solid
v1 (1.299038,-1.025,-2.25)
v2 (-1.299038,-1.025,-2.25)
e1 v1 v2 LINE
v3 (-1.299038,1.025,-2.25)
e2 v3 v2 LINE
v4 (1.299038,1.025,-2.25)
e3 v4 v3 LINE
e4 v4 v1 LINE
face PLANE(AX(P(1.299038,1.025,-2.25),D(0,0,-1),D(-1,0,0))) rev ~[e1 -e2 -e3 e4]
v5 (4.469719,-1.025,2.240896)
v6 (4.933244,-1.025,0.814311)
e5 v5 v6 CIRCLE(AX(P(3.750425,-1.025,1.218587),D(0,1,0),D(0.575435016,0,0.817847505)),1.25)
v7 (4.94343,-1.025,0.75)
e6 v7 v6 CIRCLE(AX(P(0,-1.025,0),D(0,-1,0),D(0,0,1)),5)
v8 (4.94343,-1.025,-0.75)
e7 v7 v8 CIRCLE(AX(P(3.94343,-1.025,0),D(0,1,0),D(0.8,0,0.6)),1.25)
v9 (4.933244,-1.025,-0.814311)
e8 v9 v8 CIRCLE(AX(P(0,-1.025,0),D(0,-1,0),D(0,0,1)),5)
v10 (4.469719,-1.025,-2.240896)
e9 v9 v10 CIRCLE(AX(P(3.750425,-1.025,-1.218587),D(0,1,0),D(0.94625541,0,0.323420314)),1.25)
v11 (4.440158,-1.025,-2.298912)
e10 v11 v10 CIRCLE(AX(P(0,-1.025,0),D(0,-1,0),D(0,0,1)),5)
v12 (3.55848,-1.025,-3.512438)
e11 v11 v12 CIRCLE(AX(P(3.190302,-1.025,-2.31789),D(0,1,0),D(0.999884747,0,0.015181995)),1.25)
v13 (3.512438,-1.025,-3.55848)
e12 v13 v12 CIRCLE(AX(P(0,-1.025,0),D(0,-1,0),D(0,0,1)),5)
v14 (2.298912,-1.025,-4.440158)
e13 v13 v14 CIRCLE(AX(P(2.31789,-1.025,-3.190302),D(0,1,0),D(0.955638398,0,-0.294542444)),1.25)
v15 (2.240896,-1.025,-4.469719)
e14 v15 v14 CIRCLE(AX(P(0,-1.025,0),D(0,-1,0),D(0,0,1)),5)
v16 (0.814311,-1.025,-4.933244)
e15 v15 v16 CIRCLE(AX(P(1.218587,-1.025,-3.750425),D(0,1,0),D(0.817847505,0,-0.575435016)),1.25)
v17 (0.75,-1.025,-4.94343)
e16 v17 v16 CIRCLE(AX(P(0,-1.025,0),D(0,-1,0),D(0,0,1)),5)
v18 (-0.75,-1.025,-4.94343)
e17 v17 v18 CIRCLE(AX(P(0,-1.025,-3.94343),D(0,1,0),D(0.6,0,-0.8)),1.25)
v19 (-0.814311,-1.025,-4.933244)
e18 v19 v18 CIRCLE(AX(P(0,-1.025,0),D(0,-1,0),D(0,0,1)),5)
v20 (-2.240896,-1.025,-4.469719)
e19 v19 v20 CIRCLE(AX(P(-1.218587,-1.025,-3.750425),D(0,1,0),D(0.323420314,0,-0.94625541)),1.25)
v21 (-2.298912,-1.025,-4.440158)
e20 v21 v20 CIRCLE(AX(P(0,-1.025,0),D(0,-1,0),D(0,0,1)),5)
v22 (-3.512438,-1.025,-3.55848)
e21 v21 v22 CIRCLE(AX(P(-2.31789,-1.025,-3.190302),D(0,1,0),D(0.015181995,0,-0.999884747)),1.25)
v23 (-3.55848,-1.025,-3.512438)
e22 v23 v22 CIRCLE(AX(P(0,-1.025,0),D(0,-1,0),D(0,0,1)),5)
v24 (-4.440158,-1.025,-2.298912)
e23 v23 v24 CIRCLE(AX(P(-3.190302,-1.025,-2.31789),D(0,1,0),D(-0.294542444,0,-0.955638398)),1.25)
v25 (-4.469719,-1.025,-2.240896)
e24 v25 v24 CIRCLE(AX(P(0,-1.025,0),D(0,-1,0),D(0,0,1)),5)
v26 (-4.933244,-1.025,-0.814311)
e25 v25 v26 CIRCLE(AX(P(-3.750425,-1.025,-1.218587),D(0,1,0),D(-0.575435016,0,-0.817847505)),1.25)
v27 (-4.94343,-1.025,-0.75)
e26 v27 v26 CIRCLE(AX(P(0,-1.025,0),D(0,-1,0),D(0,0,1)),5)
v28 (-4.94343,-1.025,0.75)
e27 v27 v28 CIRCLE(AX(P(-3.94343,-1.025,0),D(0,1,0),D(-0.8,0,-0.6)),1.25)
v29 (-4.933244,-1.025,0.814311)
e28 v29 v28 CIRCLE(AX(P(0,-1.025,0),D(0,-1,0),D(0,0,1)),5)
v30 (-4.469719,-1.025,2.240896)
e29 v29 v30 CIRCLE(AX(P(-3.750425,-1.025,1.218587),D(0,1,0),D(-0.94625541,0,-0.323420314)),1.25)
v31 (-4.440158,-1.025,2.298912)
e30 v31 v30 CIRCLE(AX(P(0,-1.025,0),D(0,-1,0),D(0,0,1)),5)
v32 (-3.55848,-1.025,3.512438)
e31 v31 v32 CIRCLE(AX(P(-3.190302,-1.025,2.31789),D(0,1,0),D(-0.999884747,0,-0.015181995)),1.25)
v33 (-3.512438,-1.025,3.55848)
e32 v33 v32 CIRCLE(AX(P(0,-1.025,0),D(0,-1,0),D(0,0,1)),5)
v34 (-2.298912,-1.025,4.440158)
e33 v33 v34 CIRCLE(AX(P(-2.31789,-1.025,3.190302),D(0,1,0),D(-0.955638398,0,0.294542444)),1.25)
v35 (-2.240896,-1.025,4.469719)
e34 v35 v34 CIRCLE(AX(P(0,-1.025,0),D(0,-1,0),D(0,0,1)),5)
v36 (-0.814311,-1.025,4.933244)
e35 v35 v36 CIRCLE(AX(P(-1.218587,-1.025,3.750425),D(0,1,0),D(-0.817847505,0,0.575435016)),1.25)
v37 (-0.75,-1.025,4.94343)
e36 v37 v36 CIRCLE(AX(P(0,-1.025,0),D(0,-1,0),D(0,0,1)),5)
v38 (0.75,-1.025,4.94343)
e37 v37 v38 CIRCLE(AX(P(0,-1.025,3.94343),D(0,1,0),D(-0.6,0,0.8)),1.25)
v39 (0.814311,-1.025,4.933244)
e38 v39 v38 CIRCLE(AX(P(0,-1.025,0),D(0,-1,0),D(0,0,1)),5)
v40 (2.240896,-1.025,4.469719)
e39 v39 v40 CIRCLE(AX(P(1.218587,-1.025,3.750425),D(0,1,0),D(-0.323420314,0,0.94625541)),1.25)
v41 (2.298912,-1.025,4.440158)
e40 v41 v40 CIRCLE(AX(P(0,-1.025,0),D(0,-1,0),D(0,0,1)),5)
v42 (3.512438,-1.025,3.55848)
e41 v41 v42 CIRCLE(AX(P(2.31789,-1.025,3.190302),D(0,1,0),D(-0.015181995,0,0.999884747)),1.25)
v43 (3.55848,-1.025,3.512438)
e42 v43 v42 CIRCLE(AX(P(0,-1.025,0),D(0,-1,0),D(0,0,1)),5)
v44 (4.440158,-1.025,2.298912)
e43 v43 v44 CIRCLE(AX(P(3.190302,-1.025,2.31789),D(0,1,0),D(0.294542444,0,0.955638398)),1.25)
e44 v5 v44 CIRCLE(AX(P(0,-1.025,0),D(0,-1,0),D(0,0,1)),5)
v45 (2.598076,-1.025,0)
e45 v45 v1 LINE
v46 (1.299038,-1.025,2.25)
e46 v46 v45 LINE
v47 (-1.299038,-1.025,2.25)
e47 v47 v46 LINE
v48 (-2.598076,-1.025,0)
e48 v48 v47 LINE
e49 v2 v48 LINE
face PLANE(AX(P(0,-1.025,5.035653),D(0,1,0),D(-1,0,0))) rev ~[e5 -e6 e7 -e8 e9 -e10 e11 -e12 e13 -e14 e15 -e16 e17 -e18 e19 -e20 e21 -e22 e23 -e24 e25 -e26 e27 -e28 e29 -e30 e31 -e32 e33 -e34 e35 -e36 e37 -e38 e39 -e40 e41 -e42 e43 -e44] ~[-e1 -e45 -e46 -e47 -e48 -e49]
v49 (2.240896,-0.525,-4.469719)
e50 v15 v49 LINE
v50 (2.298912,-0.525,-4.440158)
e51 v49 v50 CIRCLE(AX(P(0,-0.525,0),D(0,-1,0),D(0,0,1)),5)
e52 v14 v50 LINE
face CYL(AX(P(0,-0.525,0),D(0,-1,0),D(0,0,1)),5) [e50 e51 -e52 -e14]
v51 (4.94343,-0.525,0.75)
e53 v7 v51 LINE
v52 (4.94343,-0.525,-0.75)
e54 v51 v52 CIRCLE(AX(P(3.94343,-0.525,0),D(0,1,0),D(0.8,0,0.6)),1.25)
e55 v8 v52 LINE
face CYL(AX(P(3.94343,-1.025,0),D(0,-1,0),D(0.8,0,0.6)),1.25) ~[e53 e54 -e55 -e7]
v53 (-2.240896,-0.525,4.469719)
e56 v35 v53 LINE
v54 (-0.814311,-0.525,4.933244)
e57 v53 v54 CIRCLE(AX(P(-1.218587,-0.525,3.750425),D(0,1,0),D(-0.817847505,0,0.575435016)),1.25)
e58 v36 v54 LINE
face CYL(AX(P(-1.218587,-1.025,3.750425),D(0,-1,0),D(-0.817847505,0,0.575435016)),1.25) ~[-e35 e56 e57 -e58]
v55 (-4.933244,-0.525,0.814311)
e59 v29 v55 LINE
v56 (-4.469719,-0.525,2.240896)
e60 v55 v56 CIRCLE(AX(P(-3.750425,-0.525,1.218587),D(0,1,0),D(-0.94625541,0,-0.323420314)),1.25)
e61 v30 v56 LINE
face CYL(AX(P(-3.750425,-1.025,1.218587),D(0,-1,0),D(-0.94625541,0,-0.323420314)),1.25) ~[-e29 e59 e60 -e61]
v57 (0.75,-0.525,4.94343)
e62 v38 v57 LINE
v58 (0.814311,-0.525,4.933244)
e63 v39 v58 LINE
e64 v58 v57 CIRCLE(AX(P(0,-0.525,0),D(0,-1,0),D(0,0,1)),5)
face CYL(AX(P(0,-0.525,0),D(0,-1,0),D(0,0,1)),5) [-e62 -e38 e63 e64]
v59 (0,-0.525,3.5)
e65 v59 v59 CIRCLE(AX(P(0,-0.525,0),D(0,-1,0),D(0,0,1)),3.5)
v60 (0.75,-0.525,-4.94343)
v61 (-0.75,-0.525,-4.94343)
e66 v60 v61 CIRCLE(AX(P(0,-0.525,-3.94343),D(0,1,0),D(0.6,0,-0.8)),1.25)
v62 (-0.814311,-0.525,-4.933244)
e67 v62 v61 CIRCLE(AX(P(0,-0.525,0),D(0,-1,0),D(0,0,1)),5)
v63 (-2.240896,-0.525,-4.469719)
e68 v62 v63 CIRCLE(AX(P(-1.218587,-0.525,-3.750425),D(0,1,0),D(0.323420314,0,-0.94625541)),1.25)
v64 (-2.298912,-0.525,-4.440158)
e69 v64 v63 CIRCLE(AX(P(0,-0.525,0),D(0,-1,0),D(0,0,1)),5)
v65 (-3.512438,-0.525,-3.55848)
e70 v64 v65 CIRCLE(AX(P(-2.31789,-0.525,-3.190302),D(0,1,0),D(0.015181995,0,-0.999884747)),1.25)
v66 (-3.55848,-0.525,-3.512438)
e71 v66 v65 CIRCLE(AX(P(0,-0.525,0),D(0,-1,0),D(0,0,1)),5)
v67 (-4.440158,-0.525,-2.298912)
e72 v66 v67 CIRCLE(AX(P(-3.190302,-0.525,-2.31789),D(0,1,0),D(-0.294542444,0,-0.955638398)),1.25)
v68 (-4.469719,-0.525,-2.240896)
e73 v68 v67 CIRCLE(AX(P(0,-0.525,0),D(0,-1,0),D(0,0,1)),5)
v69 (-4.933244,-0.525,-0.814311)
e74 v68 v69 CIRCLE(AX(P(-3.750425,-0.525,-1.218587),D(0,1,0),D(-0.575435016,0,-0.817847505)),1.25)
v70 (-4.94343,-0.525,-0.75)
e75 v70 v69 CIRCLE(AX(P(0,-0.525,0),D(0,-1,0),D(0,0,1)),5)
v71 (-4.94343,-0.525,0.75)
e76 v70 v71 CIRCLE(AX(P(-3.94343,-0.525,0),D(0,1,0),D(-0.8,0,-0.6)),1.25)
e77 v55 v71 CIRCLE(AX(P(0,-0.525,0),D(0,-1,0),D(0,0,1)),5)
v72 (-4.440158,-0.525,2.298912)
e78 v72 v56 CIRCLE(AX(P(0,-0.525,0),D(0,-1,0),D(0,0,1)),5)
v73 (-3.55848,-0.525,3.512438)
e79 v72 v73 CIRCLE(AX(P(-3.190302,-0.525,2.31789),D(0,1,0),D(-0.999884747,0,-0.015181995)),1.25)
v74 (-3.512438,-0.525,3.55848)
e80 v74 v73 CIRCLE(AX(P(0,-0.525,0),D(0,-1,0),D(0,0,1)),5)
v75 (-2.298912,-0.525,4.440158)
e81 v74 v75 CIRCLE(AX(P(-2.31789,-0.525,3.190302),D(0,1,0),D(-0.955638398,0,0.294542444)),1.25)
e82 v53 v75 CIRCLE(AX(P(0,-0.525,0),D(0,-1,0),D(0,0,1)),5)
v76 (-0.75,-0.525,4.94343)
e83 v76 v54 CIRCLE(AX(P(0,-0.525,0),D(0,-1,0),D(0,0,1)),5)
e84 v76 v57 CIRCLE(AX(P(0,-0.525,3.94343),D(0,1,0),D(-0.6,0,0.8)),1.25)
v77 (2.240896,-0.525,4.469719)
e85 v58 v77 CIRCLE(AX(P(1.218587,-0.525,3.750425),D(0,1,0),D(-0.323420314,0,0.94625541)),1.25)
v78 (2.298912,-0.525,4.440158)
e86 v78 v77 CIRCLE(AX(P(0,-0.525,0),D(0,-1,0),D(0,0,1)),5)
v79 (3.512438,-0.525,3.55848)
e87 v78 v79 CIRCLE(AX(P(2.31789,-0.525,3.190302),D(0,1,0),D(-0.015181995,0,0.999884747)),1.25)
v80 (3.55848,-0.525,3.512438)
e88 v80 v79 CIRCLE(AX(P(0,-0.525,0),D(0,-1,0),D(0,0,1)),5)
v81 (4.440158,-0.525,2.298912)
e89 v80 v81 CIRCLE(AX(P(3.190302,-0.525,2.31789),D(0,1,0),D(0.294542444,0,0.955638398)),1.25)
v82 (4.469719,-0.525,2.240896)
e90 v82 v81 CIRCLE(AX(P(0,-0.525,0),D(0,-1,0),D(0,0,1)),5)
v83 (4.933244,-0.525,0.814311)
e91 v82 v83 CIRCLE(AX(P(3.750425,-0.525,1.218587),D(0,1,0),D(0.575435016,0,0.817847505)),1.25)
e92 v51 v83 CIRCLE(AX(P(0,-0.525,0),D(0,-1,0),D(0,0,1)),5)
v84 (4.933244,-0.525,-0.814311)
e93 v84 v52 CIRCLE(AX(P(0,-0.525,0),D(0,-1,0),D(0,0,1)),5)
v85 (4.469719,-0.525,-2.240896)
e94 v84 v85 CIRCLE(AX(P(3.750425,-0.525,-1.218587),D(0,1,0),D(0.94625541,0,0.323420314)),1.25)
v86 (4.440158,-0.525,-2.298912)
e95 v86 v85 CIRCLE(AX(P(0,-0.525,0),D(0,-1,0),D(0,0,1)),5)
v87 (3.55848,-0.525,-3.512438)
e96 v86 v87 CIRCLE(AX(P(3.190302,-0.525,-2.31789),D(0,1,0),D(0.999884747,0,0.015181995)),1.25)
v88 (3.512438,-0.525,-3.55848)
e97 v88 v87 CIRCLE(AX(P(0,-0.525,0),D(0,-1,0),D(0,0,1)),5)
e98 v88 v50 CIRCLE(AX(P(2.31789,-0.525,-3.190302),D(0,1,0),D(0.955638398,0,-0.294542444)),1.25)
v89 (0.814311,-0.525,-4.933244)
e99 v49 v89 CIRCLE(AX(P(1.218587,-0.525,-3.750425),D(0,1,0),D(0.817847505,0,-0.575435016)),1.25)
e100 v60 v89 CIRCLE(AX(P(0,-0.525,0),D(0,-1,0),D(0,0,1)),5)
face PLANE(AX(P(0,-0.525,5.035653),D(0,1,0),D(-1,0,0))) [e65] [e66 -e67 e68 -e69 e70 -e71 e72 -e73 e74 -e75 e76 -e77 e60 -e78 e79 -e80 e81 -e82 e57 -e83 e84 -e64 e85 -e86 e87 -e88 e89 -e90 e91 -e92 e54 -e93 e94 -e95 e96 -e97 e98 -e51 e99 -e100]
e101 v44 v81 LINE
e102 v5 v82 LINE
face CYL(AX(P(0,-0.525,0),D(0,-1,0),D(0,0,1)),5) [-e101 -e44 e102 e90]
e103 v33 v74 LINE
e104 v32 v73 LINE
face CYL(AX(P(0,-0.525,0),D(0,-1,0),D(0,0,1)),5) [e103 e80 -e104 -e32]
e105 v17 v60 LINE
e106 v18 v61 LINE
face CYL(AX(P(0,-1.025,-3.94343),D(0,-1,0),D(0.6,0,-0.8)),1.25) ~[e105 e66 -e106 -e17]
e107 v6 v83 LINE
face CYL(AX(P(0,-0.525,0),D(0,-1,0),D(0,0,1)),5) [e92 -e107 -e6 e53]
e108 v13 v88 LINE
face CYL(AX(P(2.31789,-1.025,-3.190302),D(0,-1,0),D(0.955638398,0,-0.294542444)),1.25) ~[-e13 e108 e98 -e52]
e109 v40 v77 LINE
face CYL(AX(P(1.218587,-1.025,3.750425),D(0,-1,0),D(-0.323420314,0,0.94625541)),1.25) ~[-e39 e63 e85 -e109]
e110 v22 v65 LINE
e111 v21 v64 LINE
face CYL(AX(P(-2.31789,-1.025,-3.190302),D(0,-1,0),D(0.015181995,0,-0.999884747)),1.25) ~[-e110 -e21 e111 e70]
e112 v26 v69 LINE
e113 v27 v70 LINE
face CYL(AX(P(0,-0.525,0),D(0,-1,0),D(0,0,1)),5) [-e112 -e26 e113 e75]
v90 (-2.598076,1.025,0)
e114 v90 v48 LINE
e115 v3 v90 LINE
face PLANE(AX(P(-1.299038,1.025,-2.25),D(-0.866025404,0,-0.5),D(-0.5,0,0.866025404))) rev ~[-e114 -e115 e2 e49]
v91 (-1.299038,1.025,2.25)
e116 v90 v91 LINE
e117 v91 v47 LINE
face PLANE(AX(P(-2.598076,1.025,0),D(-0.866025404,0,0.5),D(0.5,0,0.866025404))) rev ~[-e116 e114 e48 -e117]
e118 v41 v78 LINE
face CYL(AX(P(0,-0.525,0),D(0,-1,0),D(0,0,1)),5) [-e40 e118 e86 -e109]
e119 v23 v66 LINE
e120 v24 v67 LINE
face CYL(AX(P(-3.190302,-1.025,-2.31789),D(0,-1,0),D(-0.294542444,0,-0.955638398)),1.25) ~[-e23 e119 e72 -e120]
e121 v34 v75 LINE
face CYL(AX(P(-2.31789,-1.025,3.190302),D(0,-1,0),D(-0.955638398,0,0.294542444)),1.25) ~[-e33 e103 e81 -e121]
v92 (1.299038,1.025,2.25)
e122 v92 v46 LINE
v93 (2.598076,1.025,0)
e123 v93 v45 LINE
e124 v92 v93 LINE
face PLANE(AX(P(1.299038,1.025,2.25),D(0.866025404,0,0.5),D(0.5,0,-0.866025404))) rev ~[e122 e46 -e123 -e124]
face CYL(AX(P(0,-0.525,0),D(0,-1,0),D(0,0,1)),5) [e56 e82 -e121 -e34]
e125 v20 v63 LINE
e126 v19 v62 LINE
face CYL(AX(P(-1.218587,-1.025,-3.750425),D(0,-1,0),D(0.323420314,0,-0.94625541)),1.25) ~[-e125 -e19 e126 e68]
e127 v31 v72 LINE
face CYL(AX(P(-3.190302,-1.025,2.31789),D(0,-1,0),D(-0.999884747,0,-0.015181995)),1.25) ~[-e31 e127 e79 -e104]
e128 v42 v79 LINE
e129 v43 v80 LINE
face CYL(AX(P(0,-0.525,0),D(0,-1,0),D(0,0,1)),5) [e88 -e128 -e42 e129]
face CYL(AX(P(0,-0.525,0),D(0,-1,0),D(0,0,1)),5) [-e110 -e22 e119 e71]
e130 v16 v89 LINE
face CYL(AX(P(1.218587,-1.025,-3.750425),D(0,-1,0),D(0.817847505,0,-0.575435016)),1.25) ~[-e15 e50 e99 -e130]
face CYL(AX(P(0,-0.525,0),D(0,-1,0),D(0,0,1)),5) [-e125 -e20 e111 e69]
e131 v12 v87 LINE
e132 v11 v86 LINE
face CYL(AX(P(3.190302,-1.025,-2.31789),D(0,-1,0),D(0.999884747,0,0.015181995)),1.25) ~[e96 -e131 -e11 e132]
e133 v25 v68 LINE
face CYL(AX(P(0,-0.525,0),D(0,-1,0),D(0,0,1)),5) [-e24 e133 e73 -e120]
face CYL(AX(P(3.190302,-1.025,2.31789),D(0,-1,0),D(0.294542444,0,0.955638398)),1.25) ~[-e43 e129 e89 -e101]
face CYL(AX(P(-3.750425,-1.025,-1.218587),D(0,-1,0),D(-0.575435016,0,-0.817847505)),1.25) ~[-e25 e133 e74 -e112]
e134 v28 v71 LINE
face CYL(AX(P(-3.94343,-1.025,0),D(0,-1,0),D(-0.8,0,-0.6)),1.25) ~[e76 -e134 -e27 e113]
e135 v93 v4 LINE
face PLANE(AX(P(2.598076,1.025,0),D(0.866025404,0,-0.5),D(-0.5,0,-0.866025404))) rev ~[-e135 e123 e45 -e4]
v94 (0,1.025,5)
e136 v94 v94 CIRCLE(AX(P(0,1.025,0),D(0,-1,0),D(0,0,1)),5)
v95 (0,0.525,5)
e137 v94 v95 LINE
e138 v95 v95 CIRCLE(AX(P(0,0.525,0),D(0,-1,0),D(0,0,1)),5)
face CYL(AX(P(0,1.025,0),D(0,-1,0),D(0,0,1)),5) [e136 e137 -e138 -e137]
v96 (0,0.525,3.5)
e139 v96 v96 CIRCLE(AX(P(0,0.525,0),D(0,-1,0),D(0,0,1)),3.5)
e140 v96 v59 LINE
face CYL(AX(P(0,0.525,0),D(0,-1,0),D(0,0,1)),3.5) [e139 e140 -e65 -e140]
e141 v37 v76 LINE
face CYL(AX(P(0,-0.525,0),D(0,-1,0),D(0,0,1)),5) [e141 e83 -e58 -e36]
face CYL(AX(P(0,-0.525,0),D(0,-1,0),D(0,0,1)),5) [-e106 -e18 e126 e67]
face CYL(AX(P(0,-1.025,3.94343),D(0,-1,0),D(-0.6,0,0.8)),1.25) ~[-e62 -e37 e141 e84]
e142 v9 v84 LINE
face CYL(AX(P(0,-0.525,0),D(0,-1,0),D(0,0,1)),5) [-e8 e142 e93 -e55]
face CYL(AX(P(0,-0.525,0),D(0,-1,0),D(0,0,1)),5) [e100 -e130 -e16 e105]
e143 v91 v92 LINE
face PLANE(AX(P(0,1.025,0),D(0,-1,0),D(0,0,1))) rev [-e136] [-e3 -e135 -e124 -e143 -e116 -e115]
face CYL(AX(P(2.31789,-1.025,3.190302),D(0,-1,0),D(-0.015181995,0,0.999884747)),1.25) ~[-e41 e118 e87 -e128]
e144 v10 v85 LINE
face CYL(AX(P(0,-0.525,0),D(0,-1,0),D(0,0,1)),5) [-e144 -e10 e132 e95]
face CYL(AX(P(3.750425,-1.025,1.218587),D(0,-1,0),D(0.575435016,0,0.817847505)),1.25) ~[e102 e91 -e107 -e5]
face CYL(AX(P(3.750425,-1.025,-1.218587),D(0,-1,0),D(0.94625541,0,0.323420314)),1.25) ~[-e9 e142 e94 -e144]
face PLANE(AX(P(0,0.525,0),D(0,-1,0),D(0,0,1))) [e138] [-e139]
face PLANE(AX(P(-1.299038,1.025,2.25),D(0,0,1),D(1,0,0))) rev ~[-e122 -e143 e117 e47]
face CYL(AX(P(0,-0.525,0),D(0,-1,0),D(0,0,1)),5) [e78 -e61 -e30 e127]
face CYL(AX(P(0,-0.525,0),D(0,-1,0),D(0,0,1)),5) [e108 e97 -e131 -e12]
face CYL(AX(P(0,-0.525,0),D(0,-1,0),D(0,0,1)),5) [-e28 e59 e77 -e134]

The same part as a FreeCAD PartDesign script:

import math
import FreeCAD as App
import Part
import Sketcher

V = App.Vector
Q = App.Units.Quantity

doc = App.newDocument("Part")
body = doc.addObject("PartDesign::Body", "Body")

sketch1 = body.newObject("Sketcher::SketchObject", "Sketch")
sketch1.AttachmentSupport = (doc.getObject("YZ_Plane"), [""])
sketch1.MapMode = "FlatFace"
sketch1.addGeometry(Part.LineSegment(V(0.525, 3.5, 0), V(-0.525, 3.5, 0)), False)
sketch1.addGeometry(Part.LineSegment(V(-0.525, 3.5, 0), V(-0.525, 5, 0)), False)
sketch1.addGeometry(Part.LineSegment(V(-0.525, 5, 0), V(-1.025, 5, 0)), False)
sketch1.addGeometry(Part.LineSegment(V(-1.025, 5, 0), V(-1.025, 0, 0)), False)
sketch1.addGeometry(Part.LineSegment(V(-1.025, 0, 0), V(1.025, 0, 0)), False)
sketch1.addGeometry(Part.LineSegment(V(1.025, 0, 0), V(1.025, 5, 0)), False)
sketch1.addGeometry(Part.LineSegment(V(1.025, 5, 0), V(0.525, 5, 0)), False)
sketch1.addGeometry(Part.LineSegment(V(0.525, 5, 0), V(0.525, 3.5, 0)), False)
sketch1.addConstraint(Sketcher.Constraint("Coincident", 0, 2, 1, 1))
sketch1.addConstraint(Sketcher.Constraint("Coincident", 1, 2, 2, 1))
sketch1.addConstraint(Sketcher.Constraint("Coincident", 2, 2, 3, 1))
sketch1.addConstraint(Sketcher.Constraint("Coincident", 3, 2, 4, 1))
sketch1.addConstraint(Sketcher.Constraint("Coincident", 4, 2, 5, 1))
sketch1.addConstraint(Sketcher.Constraint("Coincident", 5, 2, 6, 1))
sketch1.addConstraint(Sketcher.Constraint("Coincident", 6, 2, 7, 1))
sketch1.addConstraint(Sketcher.Constraint("Coincident", 7, 2, 0, 1))
sketch1.addConstraint(Sketcher.Constraint("Horizontal", 0))
sketch1.addConstraint(Sketcher.Constraint("Vertical", 1))
sketch1.addConstraint(Sketcher.Constraint("Horizontal", 2))
sketch1.addConstraint(Sketcher.Constraint("Vertical", 3))
sketch1.addConstraint(Sketcher.Constraint("Horizontal", 4))
sketch1.addConstraint(Sketcher.Constraint("Vertical", 5))
sketch1.addConstraint(Sketcher.Constraint("Horizontal", 6))
sketch1.addConstraint(Sketcher.Constraint("Vertical", 7))
sketch1.addConstraint(Sketcher.Constraint("Symmetric", 3, 2, 4, 2, -1, 1))
sketch1.addConstraint(Sketcher.Constraint("Symmetric", 1, 2, 6, 2, -2))
sketch1.addConstraint(Sketcher.Constraint("DistanceY", 3, 2, 3, 1, Q("5 mm")))
sketch1.addConstraint(Sketcher.Constraint("DistanceX", 2, 2, 2, 1, Q("0.5 mm")))
sketch1.addConstraint(Sketcher.Constraint("DistanceY", 1, 1, 1, 2, Q("1.5 mm")))
sketch1.addConstraint(Sketcher.Constraint("DistanceX", 0, 2, 0, 1, Q("1.05 mm")))
revolution = body.newObject("PartDesign::Revolution", "Revolution")
revolution.Profile = sketch1
revolution.ReferenceAxis = (sketch1, ["H_Axis"])
revolution.Angle = 360

sketch2 = body.newObject("Sketcher::SketchObject", "Sketch001")
sketch2.AttachmentSupport = (doc.getObject("XZ_Plane"), [""])
sketch2.MapMode = "FlatFace"
sketch2.AttachmentOffset = App.Placement(V(0, 0, 1.025), App.Rotation())
sketch2.addGeometry(Part.ArcOfCircle(Part.Circle(V(0, 3.94343, 0), V(0, 0, 1), 1.25), math.radians(53.130102), math.radians(126.869898)), False)
sketch2.addGeometry(Part.ArcOfCircle(Part.Circle(V(0, 0, 0), V(0, 0, 1), 5), math.radians(81.373073), math.radians(98.626927)), False)
sketch2.addConstraint(Sketcher.Constraint("Coincident", 0, 1, 1, 1))
sketch2.addConstraint(Sketcher.Constraint("Coincident", 1, 2, 0, 2))
sketch2.addConstraint(Sketcher.Constraint("Coincident", 1, 3, -1, 1))
sketch2.addConstraint(Sketcher.Constraint("PointOnObject", 0, 3, -2))
sketch2.addConstraint(Sketcher.Constraint("Radius", 1, Q("5 mm")))
sketch2.addConstraint(Sketcher.Constraint("Radius", 0, Q("1.25 mm")))
sketch2.addConstraint(Sketcher.Constraint("DistanceY", 0, 3, 0, 1, Q("1 mm")))
pad1 = body.newObject("PartDesign::Pad", "Pad")
pad1.Profile = sketch2
pad1.Length = 0.5
pad1.Reversed = True
doc.recompute()

polarpattern = body.newObject("PartDesign::PolarPattern", "PolarPattern")
polarpattern.Originals = [pad1]
polarpattern.Axis = (doc.getObject("Y_Axis"), [""])
polarpattern.Angle = 360
polarpattern.Occurrences = 20
body.Tip = polarpattern

sketch3 = body.newObject("Sketcher::SketchObject", "Sketch002")
sketch3.AttachmentSupport = (doc.getObject("XZ_Plane"), [""])
sketch3.MapMode = "FlatFace"
sketch3.AttachmentOffset = App.Placement(V(0, 0, -1.025), App.Rotation())
sketch3.addGeometry(Part.LineSegment(V(1.299038, -2.25, 0), V(-1.299038, -2.25, 0)), False)
sketch3.addGeometry(Part.LineSegment(V(-1.299038, -2.25, 0), V(-2.598076, 0, 0)), False)
sketch3.addGeometry(Part.LineSegment(V(-2.598076, 0, 0), V(-1.299038, 2.25, 0)), False)
sketch3.addGeometry(Part.LineSegment(V(-1.299038, 2.25, 0), V(1.299038, 2.25, 0)), False)
sketch3.addGeometry(Part.LineSegment(V(1.299038, 2.25, 0), V(2.598076, 0, 0)), False)
sketch3.addGeometry(Part.LineSegment(V(2.598076, 0, 0), V(1.299038, -2.25, 0)), False)
sketch3.addConstraint(Sketcher.Constraint("Coincident", 0, 2, 1, 1))
sketch3.addConstraint(Sketcher.Constraint("Coincident", 1, 2, 2, 1))
sketch3.addConstraint(Sketcher.Constraint("Coincident", 2, 2, 3, 1))
sketch3.addConstraint(Sketcher.Constraint("Coincident", 3, 2, 4, 1))
sketch3.addConstraint(Sketcher.Constraint("Coincident", 4, 2, 5, 1))
sketch3.addConstraint(Sketcher.Constraint("Coincident", 5, 2, 0, 1))
sketch3.addConstraint(Sketcher.Constraint("Horizontal", 0))
sketch3.addConstraint(Sketcher.Constraint("Horizontal", 3))
sketch3.addConstraint(Sketcher.Constraint("Symmetric", 0, 2, 3, 2, -1, 1))
sketch3.addConstraint(Sketcher.Constraint("Symmetric", 1, 2, 4, 2, -1, 1))
sketch3.addConstraint(Sketcher.Constraint("PointOnObject", 1, 2, -1))
sketch3.addConstraint(Sketcher.Constraint("Parallel", 2, 5))
sketch3.addConstraint(Sketcher.Constraint("Vertical", 0, 2, 2, 2))
sketch3.addConstraint(Sketcher.Constraint("Angle", 1, Q("120 deg")))
sketch3.addConstraint(Sketcher.Constraint("DistanceY", 0, 2, 2, 2, Q("4.5 mm")))
sketch3.addConstraint(Sketcher.Constraint("DistanceX", 0, 2, 0, 1, Q("2.598076 mm")))
pocket1 = body.newObject("PartDesign::Pocket", "Pocket")
pocket1.Profile = sketch3
pocket1.Type = "ThroughAll"
pocket1.Midplane = True

doc.recompute()
